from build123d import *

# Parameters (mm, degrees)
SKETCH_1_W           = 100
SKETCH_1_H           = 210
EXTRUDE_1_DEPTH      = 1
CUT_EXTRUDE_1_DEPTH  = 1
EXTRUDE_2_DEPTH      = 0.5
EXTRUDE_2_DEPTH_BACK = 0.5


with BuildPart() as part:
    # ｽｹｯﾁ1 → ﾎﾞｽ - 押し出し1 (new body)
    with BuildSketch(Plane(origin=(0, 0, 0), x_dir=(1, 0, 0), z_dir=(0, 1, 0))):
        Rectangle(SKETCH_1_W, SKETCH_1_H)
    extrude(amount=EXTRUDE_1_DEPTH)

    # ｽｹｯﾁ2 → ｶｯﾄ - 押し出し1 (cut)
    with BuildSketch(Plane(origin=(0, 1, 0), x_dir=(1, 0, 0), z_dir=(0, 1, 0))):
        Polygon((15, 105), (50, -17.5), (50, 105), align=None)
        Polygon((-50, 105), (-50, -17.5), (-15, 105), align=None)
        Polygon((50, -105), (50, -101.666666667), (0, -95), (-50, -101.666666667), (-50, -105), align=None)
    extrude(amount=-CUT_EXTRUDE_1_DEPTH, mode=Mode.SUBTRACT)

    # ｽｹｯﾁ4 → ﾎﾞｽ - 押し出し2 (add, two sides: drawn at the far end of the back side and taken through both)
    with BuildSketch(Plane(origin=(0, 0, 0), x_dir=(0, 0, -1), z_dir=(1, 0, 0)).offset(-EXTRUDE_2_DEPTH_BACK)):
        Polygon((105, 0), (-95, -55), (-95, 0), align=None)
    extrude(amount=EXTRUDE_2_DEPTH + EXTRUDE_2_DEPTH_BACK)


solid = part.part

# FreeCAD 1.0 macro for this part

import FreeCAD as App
import Part
import Sketcher
from FreeCAD import Vector
Q = App.Units.Quantity


def add_polygon(sketch, points):
    """Adds a closed chain of lines whose ends are joined by coincident constraints."""
    first, n = sketch.GeometryCount, len(points)
    for a, b in zip(points, points[1:] + points[:1]):
        sketch.addGeometry(Part.LineSegment(App.Vector(*a, 0), App.Vector(*b, 0)), False)
    for i in range(n):
        sketch.addConstraint(Sketcher.Constraint("Coincident", first + i, 2, first + (i + 1) % n, 1))

doc = App.newDocument("Part")
body = doc.addObject("PartDesign::Body", "Body")

sketch1 = doc.addObject("Sketcher::SketchObject", "Sketch")
body.addObject(sketch1)
sketch1.AttachmentSupport = (doc.XZ_Plane, [""])
sketch1.MapMode = "FlatFace"
add_polygon(sketch1, [(-50, -105), (-50, 105), (50, 105), (50, -105)])
sketch1.addConstraint(Sketcher.Constraint("Vertical", 0))
sketch1.addConstraint(Sketcher.Constraint("Horizontal", 1))
sketch1.addConstraint(Sketcher.Constraint("Vertical", 2))
sketch1.addConstraint(Sketcher.Constraint("Horizontal", 3))
sketch1.addConstraint(Sketcher.Constraint("Symmetric", 0, 2, 2, 2, -1, 1))
sketch1.addConstraint(Sketcher.Constraint("DistanceX", 1, 1, 1, 2, Q("100 mm")))
sketch1.addConstraint(Sketcher.Constraint("DistanceY", 0, 1, 0, 2, Q("210 mm")))
pad1 = doc.addObject("PartDesign::Pad", "Pad")
body.addObject(pad1)
pad1.Profile = sketch1
pad1.Length = 1
pad1.Reversed = True

sketch2 = doc.addObject("Sketcher::SketchObject", "Sketch001")
body.addObject(sketch2)
sketch2.AttachmentSupport = (doc.XZ_Plane, [""])
sketch2.MapMode = "FlatFace"
sketch2.AttachmentOffset = App.Placement(Vector(0, 0, -1), App.Rotation())
add_polygon(sketch2, [(15, -105), (50, 17.5), (50, -105)])
add_polygon(sketch2, [(-50, -105), (-50, 17.5), (-15, -105)])
add_polygon(sketch2, [(50, 105), (50, 101.7), (0, 95), (-50, 101.7), (-50, 105)])
sketch2.addConstraint(Sketcher.Constraint("Vertical", 1))
sketch2.addConstraint(Sketcher.Constraint("Horizontal", 2))
sketch2.addConstraint(Sketcher.Constraint("Vertical", 3))
sketch2.addConstraint(Sketcher.Constraint("Horizontal", 5))
sketch2.addConstraint(Sketcher.Constraint("Vertical", 6))
sketch2.addConstraint(Sketcher.Constraint("Vertical", 9))
sketch2.addConstraint(Sketcher.Constraint("Horizontal", 10))
sketch2.addConstraint(Sketcher.Constraint("Symmetric", 1, 2, 9, 2, -1, 1))
sketch2.addConstraint(Sketcher.Constraint("Symmetric", 5, 2, 10, 2, -1, 1))
sketch2.addConstraint(Sketcher.Constraint("Symmetric", 0, 2, 3, 2, -2))
sketch2.addConstraint(Sketcher.Constraint("PointOnObject", 7, 2, -2))
sketch2.addConstraint(Sketcher.Constraint("Horizontal", 6, 2, 8, 2))
sketch2.addConstraint(Sketcher.Constraint("Equal", 2, 5))
sketch2.addConstraint(Sketcher.Constraint("DistanceX", 2, 2, 2, 1, Q("35 mm")))
sketch2.addConstraint(Sketcher.Constraint("DistanceX", 10, 1, 10, 2, Q("100 mm")))
sketch2.addConstraint(Sketcher.Constraint("DistanceY", 1, 2, 1, 1, Q("122.5 mm")))
sketch2.addConstraint(Sketcher.Constraint("DistanceY", 1, 2, -1, 1, Q("105 mm")))
sketch2.addConstraint(Sketcher.Constraint("DistanceY", -1, 1, 7, 2, Q("95 mm")))
sketch2.addConstraint(Sketcher.Constraint("DistanceY", 6, 2, 6, 1, Q("3.333333 mm")))
pocket1 = doc.addObject("PartDesign::Pocket", "Pocket")
body.addObject(pocket1)
pocket1.Profile = sketch2
pocket1.Length = 1
pocket1.Reversed = True

sketch3 = doc.addObject("Sketcher::SketchObject", "Sketch002")
body.addObject(sketch3)
sketch3.AttachmentSupport = (doc.YZ_Plane, [""])
sketch3.MapMode = "FlatFace"
add_polygon(sketch3, [(-55, 95), (0, -105), (0, 95)])
sketch3.addConstraint(Sketcher.Constraint("Vertical", 1))
sketch3.addConstraint(Sketcher.Constraint("Horizontal", 2))
sketch3.addConstraint(Sketcher.Constraint("PointOnObject", 0, 2, -2))
sketch3.addConstraint(Sketcher.Constraint("DistanceX", 2, 2, 2, 1, Q("55 mm")))
sketch3.addConstraint(Sketcher.Constraint("DistanceY", 1, 1, 1, 2, Q("200 mm")))
sketch3.addConstraint(Sketcher.Constraint("DistanceY", 0, 2, -1, 1, Q("105 mm")))
pad2 = doc.addObject("PartDesign::Pad", "Pad001")
body.addObject(pad2)
pad2.Profile = sketch3
pad2.Type = "TwoLengths"
pad2.Length = 0.5
pad2.Length2 = 0.5

doc.recompute()
